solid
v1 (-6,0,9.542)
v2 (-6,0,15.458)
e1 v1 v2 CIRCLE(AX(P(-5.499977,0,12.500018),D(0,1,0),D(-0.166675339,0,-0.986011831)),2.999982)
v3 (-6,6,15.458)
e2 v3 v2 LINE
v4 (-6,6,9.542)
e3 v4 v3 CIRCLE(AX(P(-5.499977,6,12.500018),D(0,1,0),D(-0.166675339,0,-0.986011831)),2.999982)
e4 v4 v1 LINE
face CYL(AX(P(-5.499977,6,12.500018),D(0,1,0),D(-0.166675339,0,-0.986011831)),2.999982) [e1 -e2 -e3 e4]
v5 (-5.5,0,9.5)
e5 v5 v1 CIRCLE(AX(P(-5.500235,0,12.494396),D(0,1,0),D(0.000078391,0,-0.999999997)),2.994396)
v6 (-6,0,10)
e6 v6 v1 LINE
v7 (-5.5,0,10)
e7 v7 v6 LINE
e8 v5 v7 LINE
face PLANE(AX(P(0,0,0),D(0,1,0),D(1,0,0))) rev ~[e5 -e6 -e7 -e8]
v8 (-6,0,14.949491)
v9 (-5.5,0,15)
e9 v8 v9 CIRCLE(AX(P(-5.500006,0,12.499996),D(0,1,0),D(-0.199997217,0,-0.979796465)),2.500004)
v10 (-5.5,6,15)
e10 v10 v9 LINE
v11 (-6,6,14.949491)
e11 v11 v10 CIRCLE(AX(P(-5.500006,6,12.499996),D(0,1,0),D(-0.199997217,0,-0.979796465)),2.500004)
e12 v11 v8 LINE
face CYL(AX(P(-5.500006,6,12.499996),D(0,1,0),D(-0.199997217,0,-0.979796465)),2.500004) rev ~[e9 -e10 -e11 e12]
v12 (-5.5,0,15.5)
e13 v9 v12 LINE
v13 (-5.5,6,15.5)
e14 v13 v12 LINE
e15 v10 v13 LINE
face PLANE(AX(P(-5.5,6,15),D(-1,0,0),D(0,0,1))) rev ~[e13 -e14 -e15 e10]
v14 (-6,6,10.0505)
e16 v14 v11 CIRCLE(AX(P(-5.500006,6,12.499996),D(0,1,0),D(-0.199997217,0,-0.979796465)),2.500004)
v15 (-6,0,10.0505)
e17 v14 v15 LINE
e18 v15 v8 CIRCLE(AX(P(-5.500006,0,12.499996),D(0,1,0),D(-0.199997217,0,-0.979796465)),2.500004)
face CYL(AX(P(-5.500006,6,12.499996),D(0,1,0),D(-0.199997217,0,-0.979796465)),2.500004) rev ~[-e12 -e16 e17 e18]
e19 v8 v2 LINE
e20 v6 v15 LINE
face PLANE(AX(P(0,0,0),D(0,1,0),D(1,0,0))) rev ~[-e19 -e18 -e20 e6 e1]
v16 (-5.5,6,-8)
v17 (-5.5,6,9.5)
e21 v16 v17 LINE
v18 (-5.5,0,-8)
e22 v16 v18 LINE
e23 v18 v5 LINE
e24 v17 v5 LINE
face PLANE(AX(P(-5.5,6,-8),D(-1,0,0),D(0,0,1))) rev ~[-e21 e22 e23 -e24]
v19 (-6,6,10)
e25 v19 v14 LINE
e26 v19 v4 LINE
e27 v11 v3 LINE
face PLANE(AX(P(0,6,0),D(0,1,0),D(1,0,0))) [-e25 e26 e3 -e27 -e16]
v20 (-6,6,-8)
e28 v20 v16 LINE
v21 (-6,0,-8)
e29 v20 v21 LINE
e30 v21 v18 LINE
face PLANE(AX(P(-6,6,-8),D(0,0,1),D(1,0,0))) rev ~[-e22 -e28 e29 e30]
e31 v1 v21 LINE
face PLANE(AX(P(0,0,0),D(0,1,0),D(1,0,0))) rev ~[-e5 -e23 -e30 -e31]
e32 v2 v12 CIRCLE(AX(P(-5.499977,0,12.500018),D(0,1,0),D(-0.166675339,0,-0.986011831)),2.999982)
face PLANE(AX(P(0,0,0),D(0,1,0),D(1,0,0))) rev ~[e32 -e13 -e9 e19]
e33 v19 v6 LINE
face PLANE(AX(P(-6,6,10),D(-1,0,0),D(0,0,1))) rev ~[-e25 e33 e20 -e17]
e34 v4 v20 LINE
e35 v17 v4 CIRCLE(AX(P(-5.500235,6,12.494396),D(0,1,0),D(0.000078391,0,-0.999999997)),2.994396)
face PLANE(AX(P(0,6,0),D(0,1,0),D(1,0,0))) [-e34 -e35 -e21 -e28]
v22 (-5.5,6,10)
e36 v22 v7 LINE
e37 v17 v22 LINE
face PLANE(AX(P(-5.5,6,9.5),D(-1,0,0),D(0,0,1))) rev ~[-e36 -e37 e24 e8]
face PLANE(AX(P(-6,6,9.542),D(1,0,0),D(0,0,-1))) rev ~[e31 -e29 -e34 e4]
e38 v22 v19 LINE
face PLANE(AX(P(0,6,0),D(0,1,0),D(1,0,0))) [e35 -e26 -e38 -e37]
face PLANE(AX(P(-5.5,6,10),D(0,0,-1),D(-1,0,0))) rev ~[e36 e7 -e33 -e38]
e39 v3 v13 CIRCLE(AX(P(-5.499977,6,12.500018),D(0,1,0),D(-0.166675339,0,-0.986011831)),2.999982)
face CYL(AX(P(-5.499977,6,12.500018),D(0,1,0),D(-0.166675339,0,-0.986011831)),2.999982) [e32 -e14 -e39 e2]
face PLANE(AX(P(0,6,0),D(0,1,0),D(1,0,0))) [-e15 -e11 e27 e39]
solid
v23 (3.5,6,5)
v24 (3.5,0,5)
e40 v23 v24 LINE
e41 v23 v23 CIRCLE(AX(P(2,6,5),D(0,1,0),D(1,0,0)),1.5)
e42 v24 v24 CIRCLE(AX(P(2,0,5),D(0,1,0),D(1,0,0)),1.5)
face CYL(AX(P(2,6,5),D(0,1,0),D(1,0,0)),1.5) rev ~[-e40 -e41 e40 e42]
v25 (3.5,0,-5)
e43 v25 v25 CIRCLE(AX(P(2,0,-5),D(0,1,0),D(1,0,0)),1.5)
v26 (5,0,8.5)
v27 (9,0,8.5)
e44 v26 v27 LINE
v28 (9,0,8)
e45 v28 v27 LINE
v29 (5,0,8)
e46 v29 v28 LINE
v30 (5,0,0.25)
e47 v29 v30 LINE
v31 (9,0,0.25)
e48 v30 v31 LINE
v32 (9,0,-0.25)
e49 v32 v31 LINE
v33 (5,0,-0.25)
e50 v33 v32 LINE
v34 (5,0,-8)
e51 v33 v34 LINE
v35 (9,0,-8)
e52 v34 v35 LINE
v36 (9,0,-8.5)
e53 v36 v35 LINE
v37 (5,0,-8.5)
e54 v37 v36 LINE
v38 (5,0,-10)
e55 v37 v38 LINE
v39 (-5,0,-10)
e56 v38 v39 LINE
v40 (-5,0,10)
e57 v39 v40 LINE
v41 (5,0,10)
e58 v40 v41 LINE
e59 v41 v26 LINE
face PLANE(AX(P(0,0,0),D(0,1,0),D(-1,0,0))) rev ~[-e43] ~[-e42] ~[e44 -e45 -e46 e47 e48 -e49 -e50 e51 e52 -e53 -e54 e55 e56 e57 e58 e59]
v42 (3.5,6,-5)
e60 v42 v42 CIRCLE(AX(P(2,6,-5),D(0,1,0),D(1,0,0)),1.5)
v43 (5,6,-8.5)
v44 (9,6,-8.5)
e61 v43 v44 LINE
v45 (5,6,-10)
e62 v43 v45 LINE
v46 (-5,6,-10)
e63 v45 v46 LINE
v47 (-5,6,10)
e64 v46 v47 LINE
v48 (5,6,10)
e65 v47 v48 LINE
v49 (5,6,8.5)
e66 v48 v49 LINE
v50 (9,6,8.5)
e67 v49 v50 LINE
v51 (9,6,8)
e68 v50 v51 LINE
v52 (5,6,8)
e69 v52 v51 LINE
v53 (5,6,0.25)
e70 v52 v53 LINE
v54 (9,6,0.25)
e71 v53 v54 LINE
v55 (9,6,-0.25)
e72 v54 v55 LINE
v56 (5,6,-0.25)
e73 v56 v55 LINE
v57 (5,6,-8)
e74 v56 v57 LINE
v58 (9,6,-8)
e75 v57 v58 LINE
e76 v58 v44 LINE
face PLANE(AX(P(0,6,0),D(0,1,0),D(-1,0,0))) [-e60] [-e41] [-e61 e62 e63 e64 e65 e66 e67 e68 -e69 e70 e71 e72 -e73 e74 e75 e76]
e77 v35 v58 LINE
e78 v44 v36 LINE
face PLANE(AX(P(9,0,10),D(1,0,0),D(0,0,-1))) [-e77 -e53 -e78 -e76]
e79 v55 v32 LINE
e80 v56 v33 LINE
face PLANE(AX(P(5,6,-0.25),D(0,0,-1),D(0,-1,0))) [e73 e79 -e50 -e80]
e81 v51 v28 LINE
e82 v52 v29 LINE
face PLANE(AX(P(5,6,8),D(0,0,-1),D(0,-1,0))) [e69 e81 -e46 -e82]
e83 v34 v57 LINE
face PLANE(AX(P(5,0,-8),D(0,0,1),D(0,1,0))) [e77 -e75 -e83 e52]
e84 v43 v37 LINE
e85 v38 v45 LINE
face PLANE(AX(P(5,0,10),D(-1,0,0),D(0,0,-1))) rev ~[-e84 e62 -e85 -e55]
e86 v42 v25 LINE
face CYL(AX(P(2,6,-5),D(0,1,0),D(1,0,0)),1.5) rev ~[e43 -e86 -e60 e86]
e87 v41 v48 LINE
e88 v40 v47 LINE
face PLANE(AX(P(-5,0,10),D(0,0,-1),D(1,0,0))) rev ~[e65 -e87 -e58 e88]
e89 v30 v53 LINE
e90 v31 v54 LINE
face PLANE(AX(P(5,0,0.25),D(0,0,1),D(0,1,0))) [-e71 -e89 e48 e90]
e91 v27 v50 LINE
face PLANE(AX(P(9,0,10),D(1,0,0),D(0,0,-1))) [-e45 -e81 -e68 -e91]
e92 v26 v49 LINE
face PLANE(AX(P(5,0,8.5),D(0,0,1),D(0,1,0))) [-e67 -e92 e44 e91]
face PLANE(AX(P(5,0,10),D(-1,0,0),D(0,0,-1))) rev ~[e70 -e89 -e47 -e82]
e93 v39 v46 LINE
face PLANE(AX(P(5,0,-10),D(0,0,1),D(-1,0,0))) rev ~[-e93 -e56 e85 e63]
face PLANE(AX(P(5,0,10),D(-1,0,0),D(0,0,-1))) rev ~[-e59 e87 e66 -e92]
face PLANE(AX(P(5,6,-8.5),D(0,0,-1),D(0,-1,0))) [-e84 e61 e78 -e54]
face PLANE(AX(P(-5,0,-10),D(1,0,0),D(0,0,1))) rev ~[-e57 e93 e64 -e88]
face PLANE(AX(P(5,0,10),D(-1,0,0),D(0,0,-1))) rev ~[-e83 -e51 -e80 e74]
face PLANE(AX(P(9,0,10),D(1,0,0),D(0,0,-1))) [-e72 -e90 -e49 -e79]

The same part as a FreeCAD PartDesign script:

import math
import FreeCAD as App
import Part
import Sketcher
from FreeCAD import Vector

doc = App.newDocument("Part")
params = doc.addObject("Spreadsheet::Sheet", "Params")
for row, (alias, value) in enumerate([
    ("sketch1_width", "10 mm"),
    ("sketch1_height", "20 mm"),
    ("pad1_length", "6 mm"),
    ("sketch2_diameter", "3 mm"),
    ("sketch3_height", "0.5 mm"),
    ("sketch3_width", "6 mm"),
    ("pad2_length", "4 mm"),
    ("sketch4_radius", "2.5 mm"),
    ("sketch4_width", "0.5 mm"),
    ("sketch4_height", "18 mm"),
    ("pad3_length", "6 mm"),
], start=1):
    params.set(f"A{row}", alias)
    params.set(f"B{row}", "=" + value)
    params.setAlias(f"B{row}", alias)

body = doc.addObject("PartDesign::Body", "Body")
body.AllowCompound = True

# Sketch on XZ plane
sketch1 = body.newObject("Sketcher::SketchObject", "Sketch")
sketch1.AttachmentSupport = (doc.getObject("XZ_Plane"), [""])
sketch1.MapMode = "FlatFace"
sketch1.addGeometry(Part.LineSegment(Vector(-5, -10, 0), Vector(-5, 10, 0)), False)
sketch1.addGeometry(Part.LineSegment(Vector(-5, 10, 0), Vector(5, 10, 0)), False)
sketch1.addGeometry(Part.LineSegment(Vector(5, 10, 0), Vector(5, -10, 0)), False)
sketch1.addGeometry(Part.LineSegment(Vector(5, -10, 0), Vector(-5, -10, 0)), False)
sketch1.addConstraint(Sketcher.Constraint("Coincident", 0, 2, 1, 1))
sketch1.addConstraint(Sketcher.Constraint("Coincident", 1, 2, 2, 1))
sketch1.addConstraint(Sketcher.Constraint("Coincident", 2, 2, 3, 1))
sketch1.addConstraint(Sketcher.Constraint("Coincident", 3, 2, 0, 1))
sketch1.addConstraint(Sketcher.Constraint("Vertical", 0))
sketch1.addConstraint(Sketcher.Constraint("Horizontal", 1))
sketch1.addConstraint(Sketcher.Constraint("Vertical", 2))
sketch1.addConstraint(Sketcher.Constraint("Horizontal", 3))
sketch1.addConstraint(Sketcher.Constraint("Symmetric", 0, 2, 2, 2, -1, 1))
sketch1.addConstraint(Sketcher.Constraint("DistanceX", 1, 1, 1, 2, 10.0))
sketch1.addConstraint(Sketcher.Constraint("DistanceY", 0, 1, 0, 2, 20.0))
sketch1.setExpression("Constraints[9]", "Params.sketch1_width")
sketch1.setExpression("Constraints[10]", "Params.sketch1_height")
pad1 = body.newObject("PartDesign::Pad", "Pad")
pad1.Profile = sketch1
pad1.setExpression("Length", "Params.pad1_length")
pad1.Reversed = True

# Sketch on XZ plane
sketch2 = body.newObject("Sketcher::SketchObject", "Sketch001")
sketch2.AttachmentSupport = (doc.getObject("XZ_Plane"), [""])
sketch2.MapMode = "FlatFace"
sketch2.AttachmentOffset = App.Placement(Vector(0, 0, -6), App.Rotation())
sketch2.addGeometry(Part.Circle(Vector(2, 5, 0), Vector(0, 0, 1), 1.5), False)
sketch2.addGeometry(Part.Circle(Vector(2, -5, 0), Vector(0, 0, 1), 1.5), False)
sketch2.addConstraint(Sketcher.Constraint("Equal", 0, 1))
sketch2.addConstraint(Sketcher.Constraint("Symmetric", 0, 3, 1, 3, -1))
sketch2.addConstraint(Sketcher.Constraint("Diameter", 0, 3.0))
sketch2.addConstraint(Sketcher.Constraint("DistanceY", -1, 1, 0, 3, 5.0))
sketch2.addConstraint(Sketcher.Constraint("DistanceX", -1, 1, 0, 3, 2.0))
sketch2.setExpression("Constraints[2]", "Params.sketch2_diameter")
pocket1 = body.newObject("PartDesign::Pocket", "Pocket")
pocket1.Profile = sketch2
pocket1.Type = "ThroughAll"
pocket1.Reversed = True

# Sketch on YZ plane
sketch3 = body.newObject("Sketcher::SketchObject", "Sketch002")
sketch3.AttachmentSupport = (doc.getObject("YZ_Plane"), [""])
sketch3.MapMode = "FlatFace"
sketch3.AttachmentOffset = App.Placement(Vector(0, 0, 5), App.Rotation())
sketch3.addGeometry(Part.LineSegment(Vector(6, 8, 0), Vector(6, 8.5, 0)), False)
sketch3.addGeometry(Part.LineSegment(Vector(6, 8.5, 0), Vector(0, 8.5, 0)), False)
sketch3.addGeometry(Part.LineSegment(Vector(0, 8.5, 0), Vector(0, 8, 0)), False)
sketch3.addGeometry(Part.LineSegment(Vector(0, 8, 0), Vector(6, 8, 0)), False)
sketch3.addGeometry(Part.LineSegment(Vector(6, -0.2, 0), Vector(6, 0.2, 0)), False)
sketch3.addGeometry(Part.LineSegment(Vector(6, 0.2, 0), Vector(0, 0.2, 0)), False)
sketch3.addGeometry(Part.LineSegment(Vector(0, 0.2, 0), Vector(0, -0.2, 0)), False)
sketch3.addGeometry(Part.LineSegment(Vector(0, -0.2, 0), Vector(6, -0.2, 0)), False)
sketch3.addGeometry(Part.LineSegment(Vector(6, -8.5, 0), Vector(6, -8, 0)), False)
sketch3.addGeometry(Part.LineSegment(Vector(6, -8, 0), Vector(0, -8, 0)), False)
sketch3.addGeometry(Part.LineSegment(Vector(0, -8, 0), Vector(0, -8.5, 0)), False)
sketch3.addGeometry(Part.LineSegment(Vector(0, -8.5, 0), Vector(6, -8.5, 0)), False)
sketch3.addConstraint(Sketcher.Constraint("Coincident", 0, 2, 1, 1))
sketch3.addConstraint(Sketcher.Constraint("Coincident", 1, 2, 2, 1))
sketch3.addConstraint(Sketcher.Constraint("Coincident", 2, 2, 3, 1))
sketch3.addConstraint(Sketcher.Constraint("Coincident", 3, 2, 0, 1))
sketch3.addConstraint(Sketcher.Constraint("Coincident", 4, 2, 5, 1))
sketch3.addConstraint(Sketcher.Constraint("Coincident", 5, 2, 6, 1))
sketch3.addConstraint(Sketcher.Constraint("Coincident", 6, 2, 7, 1))
sketch3.addConstraint(Sketcher.Constraint("Coincident", 7, 2, 4, 1))
sketch3.addConstraint(Sketcher.Constraint("Coincident", 8, 2, 9, 1))
sketch3.addConstraint(Sketcher.Constraint("Coincident", 9, 2, 10, 1))
sketch3.addConstraint(Sketcher.Constraint("Coincident", 10, 2, 11, 1))
sketch3.addConstraint(Sketcher.Constraint("Coincident", 11, 2, 8, 1))
sketch3.addConstraint(Sketcher.Constraint("Vertical", 0))
sketch3.addConstraint(Sketcher.Constraint("Horizontal", 1))
sketch3.addConstraint(Sketcher.Constraint("Vertical", 2))
sketch3.addConstraint(Sketcher.Constraint("Horizontal", 3))
sketch3.addConstraint(Sketcher.Constraint("Vertical", 4))
sketch3.addConstraint(Sketcher.Constraint("Horizontal", 5))
sketch3.addConstraint(Sketcher.Constraint("Vertical", 6))
sketch3.addConstraint(Sketcher.Constraint("Horizontal", 7))
sketch3.addConstraint(Sketcher.Constraint("Vertical", 8))
sketch3.addConstraint(Sketcher.Constraint("Horizontal", 9))
sketch3.addConstraint(Sketcher.Constraint("Vertical", 10))
sketch3.addConstraint(Sketcher.Constraint("Horizontal", 11))
sketch3.addConstraint(Sketcher.Constraint("Symmetric", 5, 2, 6, 2, -1, 1))
sketch3.addConstraint(Sketcher.Constraint("Symmetric", 2, 2, 9, 2, -1, 1))
sketch3.addConstraint(Sketcher.Constraint("Symmetric", 1, 2, 10, 2, -1))
sketch3.addConstraint(Sketcher.Constraint("Vertical", 3, 2, 4, 2))
sketch3.addConstraint(Sketcher.Constraint("Vertical", 7, 2, 8, 2))
sketch3.addConstraint(Sketcher.Constraint("Equal", 2, 4))
sketch3.addConstraint(Sketcher.Constraint("DistanceY", 0, 1, 0, 2, 0.5))
sketch3.addConstraint(Sketcher.Constraint("DistanceY", 8, 2, 3, 2, 16.0))
sketch3.addConstraint(Sketcher.Constraint("DistanceX", 1, 2, 1, 1, 6.0))
sketch3.setExpression("Constraints[30]", "Params.sketch3_height")
sketch3.setExpression("Constraints[32]", "Params.sketch3_width")
pad2 = body.newObject("PartDesign::Pad", "Pad001")
pad2.Profile = sketch3
pad2.setExpression("Length", "Params.pad2_length")

# Sketch on XZ plane
sketch4 = body.newObject("Sketcher::SketchObject", "Sketch003")
sketch4.AttachmentSupport = (doc.getObject("XZ_Plane"), [""])
sketch4.MapMode = "FlatFace"
sketch4.AttachmentOffset = App.Placement(Vector(0, 0, -6), App.Rotation())
sketch4.addGeometry(Part.LineSegment(Vector(-5.5, -8, 0), Vector(-6, -8, 0)), False)
sketch4.addGeometry(Part.LineSegment(Vector(-6, -8, 0), Vector(-6, 9.54, 0)), False)
sketch4.addGeometry(Part.ArcOfCircle(Part.Circle(Vector(-5.5, 12.5, 0), Vector(0, 0, 1), 3), math.radians(90), math.radians(260)), False)
sketch4.addGeometry(Part.LineSegment(Vector(-5.5, 15.5, 0), Vector(-5.5, 15, 0)), False)
sketch4.addGeometry(Part.ArcOfCircle(Part.Circle(Vector(-5.5, 12.5, 0), Vector(0, 0, 1), 2.5), math.radians(90), math.radians(258)), False)
sketch4.addGeometry(Part.LineSegment(Vector(-6, 10.05, 0), Vector(-6, 10, 0)), False)
sketch4.addGeometry(Part.LineSegment(Vector(-6, 10, 0), Vector(-5.5, 10, 0)), False)
sketch4.addGeometry(Part.LineSegment(Vector(-5.5, 10, 0), Vector(-5.5, -8, 0)), False)
sketch4.addConstraint(Sketcher.Constraint("Coincident", 0, 2, 1, 1))
sketch4.addConstraint(Sketcher.Constraint("Coincident", 1, 2, 2, 2))
sketch4.addConstraint(Sketcher.Constraint("Coincident", 2, 1, 3, 1))
sketch4.addConstraint(Sketcher.Constraint("Coincident", 3, 2, 4, 1))
sketch4.addConstraint(Sketcher.Constraint("Coincident", 4, 2, 5, 1))
sketch4.addConstraint(Sketcher.Constraint("Coincident", 5, 2, 6, 1))
sketch4.addConstraint(Sketcher.Constraint("Coincident", 6, 2, 7, 1))
sketch4.addConstraint(Sketcher.Constraint("Coincident", 7, 2, 0, 1))
sketch4.addConstraint(Sketcher.Constraint("Horizontal", 0))
sketch4.addConstraint(Sketcher.Constraint("Vertical", 1))
sketch4.addConstraint(Sketcher.Constraint("Vertical", 3))
sketch4.addConstraint(Sketcher.Constraint("Vertical", 5))
sketch4.addConstraint(Sketcher.Constraint("Horizontal", 6))
sketch4.addConstraint(Sketcher.Constraint("Vertical", 7))
sketch4.addConstraint(Sketcher.Constraint("Coincident", 4, 3, 2, 3))
sketch4.addConstraint(Sketcher.Constraint("Vertical", 4, 3, 2, 1))
sketch4.addConstraint(Sketcher.Constraint("Vertical", 1, 2, 4, 2))
sketch4.addConstraint(Sketcher.Constraint("Vertical", 3, 2, 6, 2))
sketch4.addConstraint(Sketcher.Constraint("Equal", 6, 3))
sketch4.addConstraint(Sketcher.Constraint("Radius", 4, 2.5))
sketch4.addConstraint(Sketcher.Constraint("DistanceX", 0, 2, 0, 1, 0.5))
sketch4.addConstraint(Sketcher.Constraint("DistanceY", 5, 2, 3, 2, 5.0))
sketch4.addConstraint(Sketcher.Constraint("DistanceY", 7, 2, 7, 1, 18.0))
sketch4.addConstraint(Sketcher.Constraint("DistanceX", 0, 2, -1, 1, 6.0))
sketch4.addConstraint(Sketcher.Constraint("DistanceY", 0, 2, -1, 1, 8.0))
sketch4.setExpression("Constraints[19]", "Params.sketch4_radius")
sketch4.setExpression("Constraints[20]", "Params.sketch4_width")
sketch4.setExpression("Constraints[22]", "Params.sketch4_height")
pad3 = body.newObject("PartDesign::Pad", "Pad002")
pad3.Profile = sketch4
pad3.setExpression("Length", "Params.pad3_length")

doc.recompute()
